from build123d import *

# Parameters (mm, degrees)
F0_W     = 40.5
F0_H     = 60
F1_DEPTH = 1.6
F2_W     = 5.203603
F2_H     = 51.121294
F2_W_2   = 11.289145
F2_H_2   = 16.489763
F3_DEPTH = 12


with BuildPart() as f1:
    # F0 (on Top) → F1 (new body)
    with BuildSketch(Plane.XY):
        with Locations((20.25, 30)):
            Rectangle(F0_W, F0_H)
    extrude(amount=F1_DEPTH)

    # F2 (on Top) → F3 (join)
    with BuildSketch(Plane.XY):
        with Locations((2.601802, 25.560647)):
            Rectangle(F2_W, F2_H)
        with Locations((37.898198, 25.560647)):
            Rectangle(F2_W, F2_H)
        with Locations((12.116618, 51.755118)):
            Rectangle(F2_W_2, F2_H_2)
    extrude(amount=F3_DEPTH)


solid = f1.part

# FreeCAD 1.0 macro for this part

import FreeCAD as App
import Part
import Sketcher

V = App.Vector
Q = App.Units.Quantity


def add_polygon(sketch, points):
    """Adds a closed chain of lines whose ends are joined by coincident constraints."""
    first, n = sketch.GeometryCount, len(points)
    for a, b in zip(points, points[1:] + points[:1]):
        sketch.addGeometry(Part.LineSegment(App.Vector(*a, 0), App.Vector(*b, 0)), False)
    for i in range(n):
        sketch.addConstraint(Sketcher.Constraint("Coincident", first + i, 2, first + (i + 1) % n, 1))

doc = App.newDocument("Part")
body = doc.addObject("PartDesign::Body", "Body")

# Sketch on XY plane
sketch1 = body.newObject("Sketcher::SketchObject", "Sketch")
sketch1.AttachmentSupport = (doc.getObject("XY_Plane"), [""])
sketch1.MapMode = "FlatFace"
add_polygon(sketch1, [(0, 60), (0, 0), (40.5, 0), (40.5, 60)])  # lines 0-3
sketch1.addConstraint(Sketcher.Constraint("Vertical", 0))
sketch1.addConstraint(Sketcher.Constraint("Horizontal", 1))
sketch1.addConstraint(Sketcher.Constraint("Vertical", 2))
sketch1.addConstraint(Sketcher.Constraint("Horizontal", 3))
sketch1.addConstraint(Sketcher.Constraint("Coincident", 0, 2, -1, 1))
sketch1.addConstraint(Sketcher.Constraint("DistanceY", 0, 2, 0, 1, Q("60 mm")))
sketch1.addConstraint(Sketcher.Constraint("DistanceX", 1, 1, 1, 2, Q("40.5 mm")))
pad1 = body.newObject("PartDesign::Pad", "Pad")
pad1.Profile = sketch1
pad1.Length = 1.6

# Sketch on XY plane
sketch2 = body.newObject("Sketcher::SketchObject", "Sketch001")
sketch2.AttachmentSupport = (doc.getObject("XY_Plane"), [""])
sketch2.MapMode = "FlatFace"
add_polygon(sketch2, [(0, 51.121294), (0, 0), (5.203603, 0), (5.203603, 51.121294)])  # lines 0-3
add_polygon(sketch2, [(35.296397, 51.121294), (35.296397, 0), (40.5, 0), (40.5, 51.121294)])  # lines 4-7
add_polygon(sketch2, [(6.472046, 60), (6.472046, 43.510236), (17.761191, 43.510236), (17.761191, 60)])  # lines 8-11
sketch2.addConstraint(Sketcher.Constraint("Vertical", 0))
sketch2.addConstraint(Sketcher.Constraint("Horizontal", 1))
sketch2.addConstraint(Sketcher.Constraint("Vertical", 2))
sketch2.addConstraint(Sketcher.Constraint("Horizontal", 3))
sketch2.addConstraint(Sketcher.Constraint("Vertical", 4))
sketch2.addConstraint(Sketcher.Constraint("Horizontal", 5))
sketch2.addConstraint(Sketcher.Constraint("Vertical", 6))
sketch2.addConstraint(Sketcher.Constraint("Horizontal", 7))
sketch2.addConstraint(Sketcher.Constraint("Vertical", 8))
sketch2.addConstraint(Sketcher.Constraint("Horizontal", 9))
sketch2.addConstraint(Sketcher.Constraint("Vertical", 10))
sketch2.addConstraint(Sketcher.Constraint("Horizontal", 11))
sketch2.addConstraint(Sketcher.Constraint("Coincident", 0, 2, -1, 1))
sketch2.addConstraint(Sketcher.Constraint("PointOnObject", 4, 2, -1))
sketch2.addConstraint(Sketcher.Constraint("Horizontal", 3, 2, 6, 2))
sketch2.addConstraint(Sketcher.Constraint("Equal", 3, 5))
sketch2.addConstraint(Sketcher.Constraint("DistanceY", -1, 1, 10, 2, Q("60 mm")))
sketch2.addConstraint(Sketcher.Constraint("DistanceX", -1, 1, 5, 2, Q("40.5 mm")))
sketch2.addConstraint(Sketcher.Constraint("DistanceX", 1, 1, 1, 2, Q("5.203603 mm")))
sketch2.addConstraint(Sketcher.Constraint("DistanceX", 9, 1, 9, 2, Q("11.289145 mm")))
sketch2.addConstraint(Sketcher.Constraint("DistanceY", 0, 2, 0, 1, Q("51.121294 mm")))
sketch2.addConstraint(Sketcher.Constraint("DistanceY", 8, 2, 8, 1, Q("16.489763 mm")))
sketch2.addConstraint(Sketcher.Constraint("DistanceX", -1, 1, 9, 2, Q("17.761191 mm")))
pad2 = body.newObject("PartDesign::Pad", "Pad001")
pad2.Profile = sketch2
pad2.Length = 12

doc.recompute()
